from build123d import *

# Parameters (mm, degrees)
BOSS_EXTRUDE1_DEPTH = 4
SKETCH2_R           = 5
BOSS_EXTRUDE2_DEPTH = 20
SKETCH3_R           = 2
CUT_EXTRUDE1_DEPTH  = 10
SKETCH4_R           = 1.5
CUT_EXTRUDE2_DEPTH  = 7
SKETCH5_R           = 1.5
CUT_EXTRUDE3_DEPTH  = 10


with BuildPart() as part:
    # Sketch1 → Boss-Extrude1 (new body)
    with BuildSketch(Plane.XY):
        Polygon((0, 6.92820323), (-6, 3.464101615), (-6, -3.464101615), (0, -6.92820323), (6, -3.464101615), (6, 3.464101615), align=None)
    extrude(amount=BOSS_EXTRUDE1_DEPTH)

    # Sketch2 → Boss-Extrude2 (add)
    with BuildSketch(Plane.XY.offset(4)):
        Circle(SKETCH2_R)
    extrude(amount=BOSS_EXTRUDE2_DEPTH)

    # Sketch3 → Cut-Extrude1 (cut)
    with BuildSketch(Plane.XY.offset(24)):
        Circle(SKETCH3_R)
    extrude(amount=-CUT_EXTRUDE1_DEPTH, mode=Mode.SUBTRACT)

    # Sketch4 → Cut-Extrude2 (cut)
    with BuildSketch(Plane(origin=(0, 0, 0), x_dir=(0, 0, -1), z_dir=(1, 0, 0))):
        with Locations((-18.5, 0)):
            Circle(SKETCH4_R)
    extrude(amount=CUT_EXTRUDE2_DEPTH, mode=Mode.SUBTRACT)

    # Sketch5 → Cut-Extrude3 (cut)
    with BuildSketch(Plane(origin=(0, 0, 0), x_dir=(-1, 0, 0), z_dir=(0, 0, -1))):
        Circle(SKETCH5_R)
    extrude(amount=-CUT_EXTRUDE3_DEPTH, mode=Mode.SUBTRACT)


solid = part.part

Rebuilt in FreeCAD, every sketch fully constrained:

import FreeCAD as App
import Part
import Sketcher
Q = App.Units.Quantity

doc = App.newDocument("Part")
params = doc.addObject("Spreadsheet::Sheet", "Params")
for row, (alias, value) in enumerate([
    ("pad1_length", "4 mm"),
    ("sketch2_diameter", "10 mm"),
    ("pad2_length", "20 mm"),
    ("sketch3_diameter", "4 mm"),
    ("pocket1_length", "10 mm"),
    ("sketch4_diameter", "3 mm"),
    ("pocket2_length", "7 mm"),
    ("sketch5_diameter", "3 mm"),
    ("pocket3_length", "10 mm"),
], start=1):
    params.set(f"A{row}", alias)
    params.set(f"B{row}", "=" + value)
    params.setAlias(f"B{row}", alias)

body = doc.addObject("PartDesign::Body", "Body")

# Sketch on XY plane
sketch1 = doc.addObject("Sketcher::SketchObject", "Sketch")
body.addObject(sketch1)
sketch1.AttachmentSupport = (doc.XY_Plane, [""])
sketch1.MapMode = "FlatFace"
sketch1.addGeometry(Part.LineSegment(App.Vector(0, 7, 0), App.Vector(-6, 3, 0)), False)
sketch1.addGeometry(Part.LineSegment(App.Vector(-6, 3, 0), App.Vector(-6, -3, 0)), False)
sketch1.addGeometry(Part.LineSegment(App.Vector(-6, -3, 0), App.Vector(0, -7, 0)), False)
sketch1.addGeometry(Part.LineSegment(App.Vector(0, -7, 0), App.Vector(6, -3, 0)), False)
sketch1.addGeometry(Part.LineSegment(App.Vector(6, -3, 0), App.Vector(6, 3, 0)), False)
sketch1.addGeometry(Part.LineSegment(App.Vector(6, 3, 0), App.Vector(0, 7, 0)), False)
sketch1.addConstraint(Sketcher.Constraint("Coincident", 0, 2, 1, 1))
sketch1.addConstraint(Sketcher.Constraint("Coincident", 1, 2, 2, 1))
sketch1.addConstraint(Sketcher.Constraint("Coincident", 2, 2, 3, 1))
sketch1.addConstraint(Sketcher.Constraint("Coincident", 3, 2, 4, 1))
sketch1.addConstraint(Sketcher.Constraint("Coincident", 4, 2, 5, 1))
sketch1.addConstraint(Sketcher.Constraint("Coincident", 5, 2, 0, 1))
sketch1.addConstraint(Sketcher.Constraint("Vertical", 1))
sketch1.addConstraint(Sketcher.Constraint("Vertical", 4))
sketch1.addConstraint(Sketcher.Constraint("Symmetric", 0, 2, 3, 2, -1, 1))
sketch1.addConstraint(Sketcher.Constraint("Symmetric", 2, 2, 5, 2, -1, 1))
sketch1.addConstraint(Sketcher.Constraint("PointOnObject", 2, 2, -2))
sketch1.addConstraint(Sketcher.Constraint("Parallel", 2, 5))
sketch1.addConstraint(Sketcher.Constraint("Horizontal", 1, 2, 3, 2))
sketch1.addConstraint(Sketcher.Constraint("Angle", 0, Q("-150 deg")))
sketch1.addConstraint(Sketcher.Constraint("DistanceX", 0, 2, -1, 1, 6.0))
sketch1.addConstraint(Sketcher.Constraint("DistanceY", -1, 1, 0, 2, 3.464102))
pad1 = doc.addObject("PartDesign::Pad", "Pad")
body.addObject(pad1)
pad1.Profile = sketch1
pad1.setExpression("Length", "Params.pad1_length")

# Sketch on XY plane
sketch2 = doc.addObject("Sketcher::SketchObject", "Sketch001")
body.addObject(sketch2)
sketch2.AttachmentSupport = (doc.XY_Plane, [""])
sketch2.MapMode = "FlatFace"
sketch2.AttachmentOffset = App.Placement(App.Vector(0, 0, 4), App.Rotation())
sketch2.addGeometry(Part.Circle(App.Vector(0, 0, 0), App.Vector(0, 0, 1), 5), False)
sketch2.addConstraint(Sketcher.Constraint("Coincident", 0, 3, -1, 1))
sketch2.addConstraint(Sketcher.Constraint("Diameter", 0, 10.0))
sketch2.setExpression("Constraints[1]", "Params.sketch2_diameter")
pad2 = doc.addObject("PartDesign::Pad", "Pad001")
body.addObject(pad2)
pad2.Profile = sketch2
pad2.setExpression("Length", "Params.pad2_length")

# Sketch on XY plane
sketch3 = doc.addObject("Sketcher::SketchObject", "Sketch002")
body.addObject(sketch3)
sketch3.AttachmentSupport = (doc.XY_Plane, [""])
sketch3.MapMode = "FlatFace"
sketch3.AttachmentOffset = App.Placement(App.Vector(0, 0, 24), App.Rotation())
sketch3.addGeometry(Part.Circle(App.Vector(0, 0, 0), App.Vector(0, 0, 1), 2), False)
sketch3.addConstraint(Sketcher.Constraint("Coincident", 0, 3, -1, 1))
sketch3.addConstraint(Sketcher.Constraint("Diameter", 0, 4.0))
sketch3.setExpression("Constraints[1]", "Params.sketch3_diameter")
pocket1 = doc.addObject("PartDesign::Pocket", "Pocket")
body.addObject(pocket1)
pocket1.Profile = sketch3
pocket1.setExpression("Length", "Params.pocket1_length")

# Sketch on YZ plane
sketch4 = doc.addObject("Sketcher::SketchObject", "Sketch003")
body.addObject(sketch4)
sketch4.AttachmentSupport = (doc.YZ_Plane, [""])
sketch4.MapMode = "FlatFace"
sketch4.addGeometry(Part.Circle(App.Vector(0, 18.5, 0), App.Vector(0, 0, 1), 1.5), False)
sketch4.addConstraint(Sketcher.Constraint("PointOnObject", 0, 3, -2))
sketch4.addConstraint(Sketcher.Constraint("Diameter", 0, 3.0))
sketch4.addConstraint(Sketcher.Constraint("DistanceY", -1, 1, 0, 3, 18.5))
sketch4.setExpression("Constraints[1]", "Params.sketch4_diameter")
pocket2 = doc.addObject("PartDesign::Pocket", "Pocket001")
body.addObject(pocket2)
pocket2.Profile = sketch4
pocket2.setExpression("Length", "Params.pocket2_length")
pocket2.Reversed = True

# Sketch on XY plane
sketch5 = doc.addObject("Sketcher::SketchObject", "Sketch004")
body.addObject(sketch5)
sketch5.AttachmentSupport = (doc.XY_Plane, [""])
sketch5.MapMode = "FlatFace"
sketch5.addGeometry(Part.Circle(App.Vector(0, 0, 0), App.Vector(0, 0, 1), 1.5), False)
sketch5.addConstraint(Sketcher.Constraint("Coincident", 0, 3, -1, 1))
sketch5.addConstraint(Sketcher.Constraint("Diameter", 0, 3.0))
sketch5.setExpression("Constraints[1]", "Params.sketch5_diameter")
pocket3 = doc.addObject("PartDesign::Pocket", "Pocket002")
body.addObject(pocket3)
pocket3.Profile = sketch5
pocket3.setExpression("Length", "Params.pocket3_length")
pocket3.Reversed = True

doc.recompute()
